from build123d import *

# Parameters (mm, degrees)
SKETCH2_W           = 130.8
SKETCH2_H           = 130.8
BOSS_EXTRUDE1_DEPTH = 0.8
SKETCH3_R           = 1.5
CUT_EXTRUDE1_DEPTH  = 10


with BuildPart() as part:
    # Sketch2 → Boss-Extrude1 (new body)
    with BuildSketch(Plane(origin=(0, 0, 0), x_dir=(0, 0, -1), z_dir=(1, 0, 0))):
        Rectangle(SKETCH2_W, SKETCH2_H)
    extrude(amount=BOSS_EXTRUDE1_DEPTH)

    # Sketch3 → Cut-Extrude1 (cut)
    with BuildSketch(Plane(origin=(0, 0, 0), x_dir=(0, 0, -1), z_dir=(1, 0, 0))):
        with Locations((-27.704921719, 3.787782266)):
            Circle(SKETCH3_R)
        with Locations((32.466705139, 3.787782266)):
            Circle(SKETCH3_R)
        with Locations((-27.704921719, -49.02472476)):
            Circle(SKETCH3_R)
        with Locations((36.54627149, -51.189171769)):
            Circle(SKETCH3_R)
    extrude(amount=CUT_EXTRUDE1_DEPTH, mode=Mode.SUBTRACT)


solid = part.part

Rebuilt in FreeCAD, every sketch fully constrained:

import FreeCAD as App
import Part
import Sketcher

V = App.Vector
Q = App.Units.Quantity

doc = App.newDocument("Part")
body = doc.addObject("PartDesign::Body", "Body")

sketch1 = doc.addObject("Sketcher::SketchObject", "Sketch")
body.addObject(sketch1)
sketch1.AttachmentSupport = (doc.YZ_Plane, [""])
sketch1.MapMode = "FlatFace"
sketch1.addGeometry([
    Part.LineSegment(V(65, 65, 0), V(-65, 65, 0)),
    Part.LineSegment(V(-65, 65, 0), V(-65, -65, 0)),
    Part.LineSegment(V(-65, -65, 0), V(65, -65, 0)),
    Part.LineSegment(V(65, -65, 0), V(65, 65, 0)),
], False)
sketch1.addConstraint([
    Sketcher.Constraint("Coincident", 0, 2, 1, 1),
    Sketcher.Constraint("Coincident", 1, 2, 2, 1),
    Sketcher.Constraint("Coincident", 2, 2, 3, 1),
    Sketcher.Constraint("Coincident", 3, 2, 0, 1),
    Sketcher.Constraint("Horizontal", 0),
    Sketcher.Constraint("Vertical", 1),
    Sketcher.Constraint("Horizontal", 2),
    Sketcher.Constraint("Vertical", 3),
    Sketcher.Constraint("Symmetric", 0, 2, 2, 2, -1, 1),
    Sketcher.Constraint("Equal", 2, 1),
    Sketcher.Constraint("DistanceX", 0, 2, 0, 1, Q("130.8 mm")),
])
pad1 = doc.addObject("PartDesign::Pad", "Pad")
body.addObject(pad1)
pad1.Profile = sketch1
pad1.Length = 0.8

sketch2 = doc.addObject("Sketcher::SketchObject", "Sketch001")
body.addObject(sketch2)
sketch2.AttachmentSupport = (doc.YZ_Plane, [""])
sketch2.MapMode = "FlatFace"
sketch2.addGeometry([
    Part.Circle(V(3.8, 27.7, 0), V(0, 0, 1), 1.5),
    Part.Circle(V(3.8, -32.5, 0), V(0, 0, 1), 1.5),
    Part.Circle(V(-49, 27.7, 0), V(0, 0, 1), 1.5),
    Part.Circle(V(-51.2, -36.5, 0), V(0, 0, 1), 1.5),
], False)
sketch2.addConstraint([
    Sketcher.Constraint("Equal", 0, 1),
    Sketcher.Constraint("Equal", 1, 2),
    Sketcher.Constraint("Equal", 2, 3),
    Sketcher.Constraint("Horizontal", 0, 3, 2, 3),
    Sketcher.Constraint("Vertical", 0, 3, 1, 3),
    Sketcher.Constraint("Diameter", 0, Q("3 mm")),
    Sketcher.Constraint("DistanceY", -1, 1, 0, 3, Q("27.704922 mm")),
    Sketcher.Constraint("DistanceX", 3, 3, -1, 1, Q("51.189172 mm")),
    Sketcher.Constraint("DistanceY", 3, 3, -1, 1, Q("36.546271 mm")),
    Sketcher.Constraint("DistanceX", -1, 1, 0, 3, Q("3.787782 mm")),
    Sketcher.Constraint("DistanceY", 1, 3, -1, 1, Q("32.466705 mm")),
    Sketcher.Constraint("DistanceX", 2, 3, -1, 1, Q("49.024725 mm")),
])
pocket1 = doc.addObject("PartDesign::Pocket", "Pocket")
body.addObject(pocket1)
pocket1.Profile = sketch2
pocket1.Length = 10
pocket1.Reversed = True

doc.recompute()
